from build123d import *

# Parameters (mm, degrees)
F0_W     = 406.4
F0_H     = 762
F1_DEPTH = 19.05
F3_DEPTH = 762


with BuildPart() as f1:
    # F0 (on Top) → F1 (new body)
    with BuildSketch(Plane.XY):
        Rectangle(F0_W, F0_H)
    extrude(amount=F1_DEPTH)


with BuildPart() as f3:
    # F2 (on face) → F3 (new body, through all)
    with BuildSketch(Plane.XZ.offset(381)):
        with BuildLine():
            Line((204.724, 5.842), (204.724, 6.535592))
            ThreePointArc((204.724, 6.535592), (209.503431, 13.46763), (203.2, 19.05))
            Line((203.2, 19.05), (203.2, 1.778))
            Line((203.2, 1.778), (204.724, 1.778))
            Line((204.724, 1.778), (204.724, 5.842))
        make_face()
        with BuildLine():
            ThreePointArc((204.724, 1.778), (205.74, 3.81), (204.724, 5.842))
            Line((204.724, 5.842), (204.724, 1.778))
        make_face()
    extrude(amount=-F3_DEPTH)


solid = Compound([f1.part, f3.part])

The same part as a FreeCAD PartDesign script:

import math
import FreeCAD as App
import Part
import Sketcher
from FreeCAD import Vector
Q = App.Units.Quantity

doc = App.newDocument("Part")
body = doc.addObject("PartDesign::Body", "Body")

# Sketch on XY plane
sketch1 = body.newObject("Sketcher::SketchObject", "Sketch")
sketch1.AttachmentSupport = (doc.getObject("XY_Plane"), [""])
sketch1.MapMode = "FlatFace"
sketch1.addGeometry(Part.LineSegment(Vector(-203.2, 381, 0), Vector(-203.2, -381, 0)), False)
sketch1.addGeometry(Part.LineSegment(Vector(-203.2, -381, 0), Vector(203.2, -381, 0)), False)
sketch1.addGeometry(Part.LineSegment(Vector(203.2, -381, 0), Vector(203.2, 381, 0)), False)
sketch1.addGeometry(Part.LineSegment(Vector(203.2, 381, 0), Vector(-203.2, 381, 0)), False)
sketch1.addConstraint(Sketcher.Constraint("Coincident", 0, 2, 1, 1))
sketch1.addConstraint(Sketcher.Constraint("Coincident", 1, 2, 2, 1))
sketch1.addConstraint(Sketcher.Constraint("Coincident", 2, 2, 3, 1))
sketch1.addConstraint(Sketcher.Constraint("Coincident", 3, 2, 0, 1))
sketch1.addConstraint(Sketcher.Constraint("Vertical", 0))
sketch1.addConstraint(Sketcher.Constraint("Horizontal", 1))
sketch1.addConstraint(Sketcher.Constraint("Vertical", 2))
sketch1.addConstraint(Sketcher.Constraint("Horizontal", 3))
sketch1.addConstraint(Sketcher.Constraint("Symmetric", 0, 2, 2, 2, -1, 1))
sketch1.addConstraint(Sketcher.Constraint("DistanceX", 1, 1, 1, 2, Q("16 in")))
sketch1.addConstraint(Sketcher.Constraint("DistanceY", 0, 2, 0, 1, Q("30 in")))
pad1 = body.newObject("PartDesign::Pad", "Pad")
pad1.Profile = sketch1
pad1.Length = Q("0.75 in")
body2 = doc.addObject("PartDesign::Body", "Body001")

# Sketch on XZ plane
sketch2 = body2.newObject("Sketcher::SketchObject", "Sketch001")
sketch2.AttachmentSupport = (doc.getObject("XZ_Plane001"), [""])
sketch2.MapMode = "FlatFace"
sketch2.AttachmentOffset = App.Placement(Vector(0, 0, 15 * 25.4), App.Rotation())
sketch2.addGeometry(Part.ArcOfCircle(Part.Circle(Vector(203.2, 12.7, 0), Vector(0, 0, 1), 6.35), math.radians(-76.113458), math.radians(89.999998)), False)
sketch2.addGeometry(Part.LineSegment(Vector(203.2, 19.05, 0), Vector(203.2, 1.778, 0)), False)
sketch2.addGeometry(Part.LineSegment(Vector(203.2, 1.778, 0), Vector(204.724, 1.778, 0)), False)
sketch2.addGeometry(Part.ArcOfCircle(Part.Circle(Vector(203.2, 3.81, 0), Vector(0, 0, 1), 2.54), math.radians(-53.130102), math.radians(53.130102)), False)
sketch2.addGeometry(Part.LineSegment(Vector(204.724, 5.842, 0), Vector(204.724, 6.535592, 0)), False)
sketch2.addConstraint(Sketcher.Constraint("Coincident", 0, 2, 1, 1))
sketch2.addConstraint(Sketcher.Constraint("Coincident", 1, 2, 2, 1))
sketch2.addConstraint(Sketcher.Constraint("Coincident", 2, 2, 3, 1))
sketch2.addConstraint(Sketcher.Constraint("Coincident", 3, 2, 4, 1))
sketch2.addConstraint(Sketcher.Constraint("Coincident", 4, 2, 0, 1))
sketch2.addConstraint(Sketcher.Constraint("Vertical", 1))
sketch2.addConstraint(Sketcher.Constraint("Horizontal", 2))
sketch2.addConstraint(Sketcher.Constraint("Vertical", 4))
sketch2.addConstraint(Sketcher.Constraint("Vertical", 0, 3, 3, 3))
sketch2.addConstraint(Sketcher.Constraint("Vertical", 3, 3, 0, 2))
sketch2.addConstraint(Sketcher.Constraint("Vertical", 2, 2, 3, 2))
sketch2.addConstraint(Sketcher.Constraint("Radius", 3, Q("0.1 in")))
sketch2.addConstraint(Sketcher.Constraint("Radius", 0, Q("0.25 in")))
sketch2.addConstraint(Sketcher.Constraint("DistanceX", -1, 1, 0, 3, Q("8 in")))
sketch2.addConstraint(Sketcher.Constraint("DistanceX", 2, 1, 2, 2, Q("0.06 in")))
sketch2.addConstraint(Sketcher.Constraint("DistanceY", 1, 2, 1, 1, Q("0.68 in")))
sketch2.addConstraint(Sketcher.Constraint("DistanceY", -1, 1, 0, 3, Q("0.5 in")))
pad2 = body2.newObject("PartDesign::Pad", "Pad001")
pad2.Profile = sketch2
pad2.Length = Q("30 in")
pad2.Reversed = True

doc.recompute()
